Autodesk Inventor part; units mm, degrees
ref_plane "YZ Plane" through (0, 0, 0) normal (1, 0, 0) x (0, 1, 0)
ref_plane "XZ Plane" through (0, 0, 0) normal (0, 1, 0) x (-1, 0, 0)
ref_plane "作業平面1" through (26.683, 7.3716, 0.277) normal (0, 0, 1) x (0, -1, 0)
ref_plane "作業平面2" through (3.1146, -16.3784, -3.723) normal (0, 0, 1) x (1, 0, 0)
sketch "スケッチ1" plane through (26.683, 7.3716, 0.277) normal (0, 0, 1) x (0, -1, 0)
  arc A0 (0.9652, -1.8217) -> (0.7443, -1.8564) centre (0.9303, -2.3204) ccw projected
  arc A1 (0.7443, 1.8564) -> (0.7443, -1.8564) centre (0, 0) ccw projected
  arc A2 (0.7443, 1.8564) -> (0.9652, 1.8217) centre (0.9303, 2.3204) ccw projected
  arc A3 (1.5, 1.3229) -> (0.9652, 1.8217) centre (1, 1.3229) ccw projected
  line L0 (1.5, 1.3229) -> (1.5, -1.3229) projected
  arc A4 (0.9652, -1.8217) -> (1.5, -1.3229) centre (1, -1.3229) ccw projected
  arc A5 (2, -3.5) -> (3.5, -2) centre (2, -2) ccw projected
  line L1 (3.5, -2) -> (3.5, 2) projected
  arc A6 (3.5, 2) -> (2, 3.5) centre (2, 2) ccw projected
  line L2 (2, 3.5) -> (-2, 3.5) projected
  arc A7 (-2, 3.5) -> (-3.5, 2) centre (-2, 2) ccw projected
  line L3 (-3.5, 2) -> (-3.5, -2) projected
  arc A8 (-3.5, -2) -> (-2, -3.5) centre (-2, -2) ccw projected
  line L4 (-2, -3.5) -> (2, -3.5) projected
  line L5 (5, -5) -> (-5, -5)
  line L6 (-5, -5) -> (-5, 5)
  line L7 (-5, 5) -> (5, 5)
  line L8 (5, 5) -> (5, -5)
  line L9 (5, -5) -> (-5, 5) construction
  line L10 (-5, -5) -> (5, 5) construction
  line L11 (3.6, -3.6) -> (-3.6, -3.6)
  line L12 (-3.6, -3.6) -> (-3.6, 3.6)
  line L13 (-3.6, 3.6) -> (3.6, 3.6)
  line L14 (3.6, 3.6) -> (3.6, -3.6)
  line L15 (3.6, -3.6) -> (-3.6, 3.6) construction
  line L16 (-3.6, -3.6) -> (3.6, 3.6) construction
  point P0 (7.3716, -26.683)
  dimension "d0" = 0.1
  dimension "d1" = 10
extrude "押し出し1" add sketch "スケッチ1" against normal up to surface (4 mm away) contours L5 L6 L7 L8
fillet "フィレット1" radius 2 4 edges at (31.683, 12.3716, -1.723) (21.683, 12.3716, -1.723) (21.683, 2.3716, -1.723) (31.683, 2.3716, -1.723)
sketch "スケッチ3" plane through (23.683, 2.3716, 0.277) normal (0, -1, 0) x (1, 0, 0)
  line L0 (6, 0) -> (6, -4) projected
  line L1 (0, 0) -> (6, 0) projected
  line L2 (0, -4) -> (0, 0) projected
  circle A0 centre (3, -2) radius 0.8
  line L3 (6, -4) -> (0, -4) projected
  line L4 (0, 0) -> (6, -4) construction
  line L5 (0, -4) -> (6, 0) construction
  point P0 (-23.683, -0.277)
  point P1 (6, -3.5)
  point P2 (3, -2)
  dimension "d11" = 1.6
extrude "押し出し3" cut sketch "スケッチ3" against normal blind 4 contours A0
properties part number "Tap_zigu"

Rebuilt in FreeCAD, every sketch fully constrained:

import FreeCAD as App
import Part
import Sketcher

V = App.Vector
Q = App.Units.Quantity


def edges_at(feature, points):
    """Names of the edges that pass closest to the given points."""
    edges = feature.Shape.Edges
    near = lambda p: min(range(len(edges)), key=lambda i: edges[i].distToShape(Part.Vertex(*p))[0])
    return sorted({f"Edge{near(p) + 1}" for p in points})

doc = App.newDocument("Part")
body = doc.addObject("PartDesign::Body", "Body")

sketch1 = body.newObject("Sketcher::SketchObject", "Sketch")
sketch1.AttachmentSupport = (doc.getObject("XY_Plane"), [""])
sketch1.MapMode = "FlatFace"
sketch1.AttachmentOffset = App.Placement(V(0, 0, 0.277), App.Rotation())
sketch1.addGeometry([
    Part.LineSegment(V(22, 12, 0), V(22, 2, 0)),
    Part.LineSegment(V(22, 2, 0), V(32, 2, 0)),
    Part.LineSegment(V(32, 2, 0), V(32, 12, 0)),
    Part.LineSegment(V(32, 12, 0), V(22, 12, 0)),
    Part.LineSegment(V(30, 4, 0), V(23, 4, 0)),
    Part.LineSegment(V(23, 4, 0), V(23, 11, 0)),
    Part.LineSegment(V(23, 11, 0), V(30, 11, 0)),
    Part.LineSegment(V(30, 11, 0), V(30, 4, 0)),
], False)
sketch1.addConstraint([
    Sketcher.Constraint("Coincident", 0, 2, 1, 1),
    Sketcher.Constraint("Coincident", 1, 2, 2, 1),
    Sketcher.Constraint("Coincident", 2, 2, 3, 1),
    Sketcher.Constraint("Coincident", 3, 2, 0, 1),
    Sketcher.Constraint("Coincident", 4, 2, 5, 1),
    Sketcher.Constraint("Coincident", 5, 2, 6, 1),
    Sketcher.Constraint("Coincident", 6, 2, 7, 1),
    Sketcher.Constraint("Coincident", 7, 2, 4, 1),
    Sketcher.Constraint("Vertical", 0),
    Sketcher.Constraint("Horizontal", 1),
    Sketcher.Constraint("Vertical", 2),
    Sketcher.Constraint("Horizontal", 3),
    Sketcher.Constraint("Horizontal", 4),
    Sketcher.Constraint("Vertical", 5),
    Sketcher.Constraint("Horizontal", 6),
    Sketcher.Constraint("Vertical", 7),
    Sketcher.Constraint("Equal", 3, 0),
    Sketcher.Constraint("Equal", 6, 5),
    Sketcher.Constraint("DistanceX", 1, 1, 1, 2, Q("10 mm")),
    Sketcher.Constraint("DistanceX", 4, 2, 4, 1, Q("7.2 mm")),
    Sketcher.Constraint("DistanceX", 0, 2, 4, 2, Q("1.4 mm")),
    Sketcher.Constraint("DistanceY", 0, 2, 4, 2, Q("1.4 mm")),
    Sketcher.Constraint("DistanceX", -1, 1, 0, 2, Q("21.683 mm")),
    Sketcher.Constraint("DistanceY", -1, 1, 0, 2, Q("2.3716 mm")),
])
pad1 = body.newObject("PartDesign::Pad", "Pad")
pad1.Profile = sketch1
pad1.Length = 4
pad1.Reversed = True
doc.recompute()

fillet = body.newObject("PartDesign::Fillet", "Fillet")
fillet.Base = (pad1, edges_at(pad1, [
    (31.683, 12.372, -1.723),
    (21.683, 12.372, -1.723),
    (21.683, 2.372, -1.723),
    (31.683, 2.372, -1.723),
]))
fillet.Radius = 2

sketch2 = body.newObject("Sketcher::SketchObject", "Sketch001")
sketch2.AttachmentSupport = (doc.getObject("XZ_Plane"), [""])
sketch2.MapMode = "FlatFace"
sketch2.AttachmentOffset = App.Placement(V(0, 0, -2.3716), App.Rotation())
sketch2.addGeometry(Part.Circle(V(26.7, -1.7, 0), V(0, 0, 1), 0.8), False)
sketch2.addConstraint([
    Sketcher.Constraint("Diameter", 0, Q("1.6 mm")),
    Sketcher.Constraint("DistanceX", -1, 1, 0, 3, Q("26.683 mm")),
    Sketcher.Constraint("DistanceY", 0, 3, -1, 1, Q("1.723 mm")),
])
pocket1 = body.newObject("PartDesign::Pocket", "Pocket")
pocket1.Profile = sketch2
pocket1.Length = 4

doc.recompute()
